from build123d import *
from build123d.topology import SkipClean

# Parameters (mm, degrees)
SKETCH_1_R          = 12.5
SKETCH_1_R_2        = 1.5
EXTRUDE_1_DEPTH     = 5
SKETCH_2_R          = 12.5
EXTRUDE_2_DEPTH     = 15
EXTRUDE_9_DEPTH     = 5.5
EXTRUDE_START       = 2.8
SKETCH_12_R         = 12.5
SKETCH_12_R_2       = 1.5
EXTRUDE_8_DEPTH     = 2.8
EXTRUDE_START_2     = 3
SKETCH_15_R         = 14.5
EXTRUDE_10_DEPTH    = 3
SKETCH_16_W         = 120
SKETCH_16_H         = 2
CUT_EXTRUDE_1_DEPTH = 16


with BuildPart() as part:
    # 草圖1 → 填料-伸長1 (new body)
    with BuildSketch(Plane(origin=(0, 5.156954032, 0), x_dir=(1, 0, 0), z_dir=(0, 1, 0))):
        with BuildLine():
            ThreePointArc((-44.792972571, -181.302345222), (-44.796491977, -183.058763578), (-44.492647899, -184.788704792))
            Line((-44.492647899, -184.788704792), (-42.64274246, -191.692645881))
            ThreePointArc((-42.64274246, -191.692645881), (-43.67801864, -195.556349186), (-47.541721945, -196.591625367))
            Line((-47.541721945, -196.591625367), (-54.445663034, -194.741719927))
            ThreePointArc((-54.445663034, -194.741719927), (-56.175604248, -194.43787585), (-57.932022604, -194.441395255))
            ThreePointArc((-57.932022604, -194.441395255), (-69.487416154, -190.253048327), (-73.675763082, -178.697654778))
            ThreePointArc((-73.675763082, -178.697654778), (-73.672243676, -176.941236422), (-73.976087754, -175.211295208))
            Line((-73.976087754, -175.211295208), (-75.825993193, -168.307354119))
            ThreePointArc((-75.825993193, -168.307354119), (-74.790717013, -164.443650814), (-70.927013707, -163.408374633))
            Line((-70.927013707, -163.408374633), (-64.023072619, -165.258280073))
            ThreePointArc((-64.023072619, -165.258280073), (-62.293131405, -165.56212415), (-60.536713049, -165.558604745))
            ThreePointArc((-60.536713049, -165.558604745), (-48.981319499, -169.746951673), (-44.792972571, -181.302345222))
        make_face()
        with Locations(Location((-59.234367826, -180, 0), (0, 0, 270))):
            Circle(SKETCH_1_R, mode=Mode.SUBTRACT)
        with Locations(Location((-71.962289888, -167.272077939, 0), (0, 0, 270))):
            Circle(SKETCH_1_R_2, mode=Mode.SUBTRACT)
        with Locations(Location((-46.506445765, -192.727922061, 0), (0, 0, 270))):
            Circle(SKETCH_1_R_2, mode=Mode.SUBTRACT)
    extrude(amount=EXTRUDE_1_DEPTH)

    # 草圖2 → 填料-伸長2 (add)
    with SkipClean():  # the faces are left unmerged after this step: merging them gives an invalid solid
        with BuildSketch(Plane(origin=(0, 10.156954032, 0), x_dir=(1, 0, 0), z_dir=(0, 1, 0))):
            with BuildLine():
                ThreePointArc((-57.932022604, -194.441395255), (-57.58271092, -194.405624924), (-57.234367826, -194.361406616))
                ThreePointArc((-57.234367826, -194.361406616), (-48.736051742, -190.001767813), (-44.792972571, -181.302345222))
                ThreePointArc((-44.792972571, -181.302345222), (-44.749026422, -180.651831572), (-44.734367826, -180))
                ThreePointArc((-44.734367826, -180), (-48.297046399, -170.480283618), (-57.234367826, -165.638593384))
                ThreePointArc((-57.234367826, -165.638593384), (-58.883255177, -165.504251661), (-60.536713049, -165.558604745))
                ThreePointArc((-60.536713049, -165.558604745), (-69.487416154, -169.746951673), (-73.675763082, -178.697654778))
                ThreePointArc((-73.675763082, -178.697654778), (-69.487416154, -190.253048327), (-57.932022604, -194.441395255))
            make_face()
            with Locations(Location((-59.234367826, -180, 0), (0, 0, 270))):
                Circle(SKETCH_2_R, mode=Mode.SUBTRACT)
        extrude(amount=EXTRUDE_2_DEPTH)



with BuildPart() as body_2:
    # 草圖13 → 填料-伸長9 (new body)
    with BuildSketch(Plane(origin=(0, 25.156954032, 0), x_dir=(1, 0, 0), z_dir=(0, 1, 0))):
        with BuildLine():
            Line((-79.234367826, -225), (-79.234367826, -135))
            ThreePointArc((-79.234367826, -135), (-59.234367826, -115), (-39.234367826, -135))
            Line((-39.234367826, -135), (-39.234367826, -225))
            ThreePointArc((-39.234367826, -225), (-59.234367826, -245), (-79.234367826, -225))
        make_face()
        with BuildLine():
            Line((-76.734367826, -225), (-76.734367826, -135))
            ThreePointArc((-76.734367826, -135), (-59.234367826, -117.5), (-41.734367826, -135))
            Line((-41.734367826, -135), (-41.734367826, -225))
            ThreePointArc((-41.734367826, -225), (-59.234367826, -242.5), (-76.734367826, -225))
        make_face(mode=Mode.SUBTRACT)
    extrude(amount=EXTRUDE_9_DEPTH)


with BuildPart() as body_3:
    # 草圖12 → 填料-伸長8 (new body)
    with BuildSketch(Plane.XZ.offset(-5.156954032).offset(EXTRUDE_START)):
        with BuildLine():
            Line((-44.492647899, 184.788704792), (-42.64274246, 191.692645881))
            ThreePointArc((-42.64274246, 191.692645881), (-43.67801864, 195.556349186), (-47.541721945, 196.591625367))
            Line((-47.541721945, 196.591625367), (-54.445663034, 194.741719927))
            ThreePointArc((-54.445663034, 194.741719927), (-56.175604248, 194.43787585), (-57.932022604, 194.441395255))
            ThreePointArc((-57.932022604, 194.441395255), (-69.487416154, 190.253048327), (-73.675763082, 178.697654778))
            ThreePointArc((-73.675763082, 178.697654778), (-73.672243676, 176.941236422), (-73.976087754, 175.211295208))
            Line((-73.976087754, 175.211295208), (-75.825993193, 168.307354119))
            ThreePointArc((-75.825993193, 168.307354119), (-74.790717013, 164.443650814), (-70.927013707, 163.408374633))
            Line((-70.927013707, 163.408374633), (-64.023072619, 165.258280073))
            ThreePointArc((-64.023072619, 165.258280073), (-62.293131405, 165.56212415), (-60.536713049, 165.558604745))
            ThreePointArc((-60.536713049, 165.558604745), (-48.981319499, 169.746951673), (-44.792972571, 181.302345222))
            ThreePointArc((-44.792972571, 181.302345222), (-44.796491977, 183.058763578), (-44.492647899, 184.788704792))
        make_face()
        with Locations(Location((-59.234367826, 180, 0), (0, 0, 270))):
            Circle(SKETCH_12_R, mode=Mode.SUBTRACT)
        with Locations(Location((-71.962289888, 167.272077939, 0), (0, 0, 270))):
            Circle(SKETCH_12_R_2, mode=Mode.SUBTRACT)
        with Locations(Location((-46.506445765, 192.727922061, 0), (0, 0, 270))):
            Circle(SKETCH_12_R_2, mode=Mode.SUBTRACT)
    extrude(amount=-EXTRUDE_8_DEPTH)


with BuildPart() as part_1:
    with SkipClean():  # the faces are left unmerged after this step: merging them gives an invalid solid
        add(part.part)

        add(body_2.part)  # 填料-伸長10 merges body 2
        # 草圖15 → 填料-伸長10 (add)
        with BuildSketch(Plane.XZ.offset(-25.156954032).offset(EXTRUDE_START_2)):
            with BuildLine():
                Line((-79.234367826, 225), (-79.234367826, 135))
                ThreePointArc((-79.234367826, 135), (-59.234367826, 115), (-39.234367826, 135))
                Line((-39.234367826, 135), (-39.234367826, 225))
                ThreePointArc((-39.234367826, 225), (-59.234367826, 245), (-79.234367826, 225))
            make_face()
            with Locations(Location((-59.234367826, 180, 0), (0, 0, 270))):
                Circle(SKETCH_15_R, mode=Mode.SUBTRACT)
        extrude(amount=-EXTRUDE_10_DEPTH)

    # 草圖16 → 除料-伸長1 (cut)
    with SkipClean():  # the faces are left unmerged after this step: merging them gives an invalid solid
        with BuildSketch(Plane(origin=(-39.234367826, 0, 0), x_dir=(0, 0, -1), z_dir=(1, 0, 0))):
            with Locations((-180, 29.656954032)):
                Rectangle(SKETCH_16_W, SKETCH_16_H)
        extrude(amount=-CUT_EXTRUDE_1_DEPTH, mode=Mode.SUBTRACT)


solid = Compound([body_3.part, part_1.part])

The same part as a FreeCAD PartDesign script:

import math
import FreeCAD as App
import Part
import Sketcher
Q = App.Units.Quantity


def add_polygon(sketch, points):
    """Adds a closed chain of lines whose ends are joined by coincident constraints."""
    first, n = sketch.GeometryCount, len(points)
    for a, b in zip(points, points[1:] + points[:1]):
        sketch.addGeometry(Part.LineSegment(App.Vector(*a, 0), App.Vector(*b, 0)), False)
    for i in range(n):
        sketch.addConstraint(Sketcher.Constraint("Coincident", first + i, 2, first + (i + 1) % n, 1))

doc = App.newDocument("Part")
body = doc.addObject("PartDesign::Body", "Body")

sketch1 = body.newObject("Sketcher::SketchObject", "Sketch")
sketch1.AttachmentSupport = (doc.getObject("XZ_Plane"), [""])
sketch1.MapMode = "FlatFace"
sketch1.AttachmentOffset = App.Placement(App.Vector(0, 0, -5.156954), App.Rotation())
sketch1.addGeometry(Part.ArcOfCircle(Part.Circle(App.Vector(-34.8, 182.2, 0), App.Vector(0, 0, 1), 10), math.radians(165), math.radians(185)), False)
sketch1.addGeometry(Part.ArcOfCircle(Part.Circle(App.Vector(-59.2, 180, 0), App.Vector(0, 0, 1), 14.5), math.radians(-95), math.radians(5)), False)
sketch1.addGeometry(Part.ArcOfCircle(Part.Circle(App.Vector(-61.4, 155.6, 0), App.Vector(0, 0, 1), 10), math.radians(85), math.radians(105)), False)
sketch1.addGeometry(Part.LineSegment(App.Vector(-64, 165.3, 0), App.Vector(-70.9, 163.4, 0)), False)
sketch1.addGeometry(Part.ArcOfCircle(Part.Circle(App.Vector(-72, 167.3, 0), App.Vector(0, 0, 1), 4), math.radians(165), math.radians(285)), False)
sketch1.addGeometry(Part.LineSegment(App.Vector(-75.8, 168.3, 0), App.Vector(-74, 175.2, 0)), False)
sketch1.addGeometry(Part.ArcOfCircle(Part.Circle(App.Vector(-83.6, 177.8, 0), App.Vector(0, 0, 1), 10), math.radians(-15), math.radians(5)), False)
sketch1.addGeometry(Part.ArcOfCircle(Part.Circle(App.Vector(-59.2, 180, 0), App.Vector(0, 0, 1), 14.5), math.radians(85), math.radians(185)), False)
sketch1.addGeometry(Part.ArcOfCircle(Part.Circle(App.Vector(-57, 204.4, 0), App.Vector(0, 0, 1), 10), math.radians(-95), math.radians(-75)), False)
sketch1.addGeometry(Part.LineSegment(App.Vector(-54.4, 194.7, 0), App.Vector(-47.5, 196.6, 0)), False)
sketch1.addGeometry(Part.ArcOfCircle(Part.Circle(App.Vector(-46.5, 192.7, 0), App.Vector(0, 0, 1), 4), math.radians(-15), math.radians(105)), False)
sketch1.addGeometry(Part.LineSegment(App.Vector(-42.6, 191.7, 0), App.Vector(-44.5, 184.8, 0)), False)
sketch1.addGeometry(Part.Circle(App.Vector(-46.5, 192.7, 0), App.Vector(0, 0, 1), 1.5), False)
sketch1.addGeometry(Part.Circle(App.Vector(-59.2, 180, 0), App.Vector(0, 0, 1), 12.5), False)
sketch1.addGeometry(Part.Circle(App.Vector(-72, 167.3, 0), App.Vector(0, 0, 1), 1.5), False)
sketch1.addConstraint(Sketcher.Constraint("Tangent", 0, 2, 1, 2))
sketch1.addConstraint(Sketcher.Constraint("Tangent", 1, 1, 2, 1))
sketch1.addConstraint(Sketcher.Constraint("Tangent", 2, 2, 3, 1))
sketch1.addConstraint(Sketcher.Constraint("Tangent", 3, 2, 4, 2))
sketch1.addConstraint(Sketcher.Constraint("Tangent", 4, 1, 5, 1))
sketch1.addConstraint(Sketcher.Constraint("Tangent", 5, 2, 6, 1))
sketch1.addConstraint(Sketcher.Constraint("Tangent", 6, 2, 7, 2))
sketch1.addConstraint(Sketcher.Constraint("Tangent", 7, 1, 8, 1))
sketch1.addConstraint(Sketcher.Constraint("Tangent", 8, 2, 9, 1))
sketch1.addConstraint(Sketcher.Constraint("Tangent", 9, 2, 10, 2))
sketch1.addConstraint(Sketcher.Constraint("Tangent", 10, 1, 11, 1))
sketch1.addConstraint(Sketcher.Constraint("Tangent", 11, 2, 0, 1))
sketch1.addConstraint(Sketcher.Constraint("Coincident", 7, 3, 1, 3))
sketch1.addConstraint(Sketcher.Constraint("Coincident", 12, 3, 10, 3))
sketch1.addConstraint(Sketcher.Constraint("Coincident", 13, 3, 1, 3))
sketch1.addConstraint(Sketcher.Constraint("Coincident", 14, 3, 4, 3))
sketch1.addConstraint(Sketcher.Constraint("Equal", 0, 2))
sketch1.addConstraint(Sketcher.Constraint("Equal", 2, 6))
sketch1.addConstraint(Sketcher.Constraint("Equal", 1, 7))
sketch1.addConstraint(Sketcher.Constraint("Equal", 6, 8))
sketch1.addConstraint(Sketcher.Constraint("Equal", 4, 10))
sketch1.addConstraint(Sketcher.Constraint("Equal", 12, 14))
sketch1.addConstraint(Sketcher.Constraint("Parallel", 3, 9))
sketch1.addConstraint(Sketcher.Constraint("Parallel", 5, 11))
sketch1.addConstraint(Sketcher.Constraint("Equal", 3, 5))
sketch1.addConstraint(Sketcher.Constraint("Equal", 5, 9))
sketch1.addConstraint(Sketcher.Constraint("Equal", 9, 11))
sketch1.addConstraint(Sketcher.Constraint("Diameter", 12, 3.0))
sketch1.addConstraint(Sketcher.Constraint("Diameter", 13, 25.0))
sketch1.addConstraint(Sketcher.Constraint("Radius", 0, 10.0))
sketch1.addConstraint(Sketcher.Constraint("Radius", 4, 4.0))
sketch1.addConstraint(Sketcher.Constraint("Radius", 1, 14.5))
sketch1.addConstraint(Sketcher.Constraint("Angle", 3, Q("-165 deg")))
sketch1.addConstraint(Sketcher.Constraint("Angle", 5, Q("75 deg")))
sketch1.addConstraint(Sketcher.Constraint("DistanceY", -1, 1, 1, 3, 180.0))
sketch1.addConstraint(Sketcher.Constraint("DistanceX", 4, 3, 0, 3, 37.1289))
sketch1.addConstraint(Sketcher.Constraint("DistanceX", 0, 3, -1, 1, 34.83339))
pad1 = body.newObject("PartDesign::Pad", "Pad")
pad1.Profile = sketch1
pad1.Length = 5
pad1.Reversed = True

sketch2 = body.newObject("Sketcher::SketchObject", "Sketch001")
sketch2.AttachmentSupport = (doc.getObject("XZ_Plane"), [""])
sketch2.MapMode = "FlatFace"
sketch2.AttachmentOffset = App.Placement(App.Vector(0, 0, -10.156954), App.Rotation())
sketch2.addGeometry(Part.ArcOfCircle(Part.Circle(App.Vector(-59.2, 180, 0), App.Vector(0, 0, 1), 14.5), math.radians(82.07), math.radians(84.85)), False)
sketch2.addGeometry(Part.ArcOfCircle(Part.Circle(App.Vector(-59.2, 180, 0), App.Vector(0, 0, 1), 14.5), math.radians(5), math.radians(82)), False)
sketch2.addGeometry(Part.ArcOfCircle(Part.Circle(App.Vector(-59.2, 180, 0), App.Vector(0, 0, 1), 14.5), math.radians(0), math.radians(5.15)), False)
sketch2.addGeometry(Part.ArcOfCircle(Part.Circle(App.Vector(-59.2, 180, 0), App.Vector(0, 0, 1), 14.5), math.radians(-82), math.radians(0)), False)
sketch2.addGeometry(Part.ArcOfCircle(Part.Circle(App.Vector(-59.2, 180, 0), App.Vector(0, 0, 1), 14.5), math.radians(-95.15), math.radians(-82.07)), False)
sketch2.addGeometry(Part.ArcOfCircle(Part.Circle(App.Vector(-59.2, 180, 0), App.Vector(0, 0, 1), 14.5), math.radians(-175), math.radians(-95)), False)
sketch2.addGeometry(Part.ArcOfCircle(Part.Circle(App.Vector(-59.2, 180, 0), App.Vector(0, 0, 1), 14.5), math.radians(85), math.radians(185)), False)
sketch2.addGeometry(Part.Circle(App.Vector(-59.2, 180, 0), App.Vector(0, 0, 1), 12.5), False)
sketch2.addConstraint(Sketcher.Constraint("Tangent", 0, 1, 1, 2))
sketch2.addConstraint(Sketcher.Constraint("Tangent", 1, 1, 2, 2))
sketch2.addConstraint(Sketcher.Constraint("Tangent", 2, 1, 3, 2))
sketch2.addConstraint(Sketcher.Constraint("Tangent", 3, 1, 4, 2))
sketch2.addConstraint(Sketcher.Constraint("Tangent", 4, 1, 5, 2))
sketch2.addConstraint(Sketcher.Constraint("Tangent", 5, 1, 6, 2))
sketch2.addConstraint(Sketcher.Constraint("Tangent", 6, 1, 0, 2))
sketch2.addConstraint(Sketcher.Constraint("Coincident", 2, 3, 0, 3))
sketch2.addConstraint(Sketcher.Constraint("Coincident", 4, 3, 0, 3))
sketch2.addConstraint(Sketcher.Constraint("Coincident", 7, 3, 0, 3))
sketch2.addConstraint(Sketcher.Constraint("Horizontal", 7, 3, 2, 1))
sketch2.addConstraint(Sketcher.Constraint("Vertical", 0, 1, 3, 1))
sketch2.addConstraint(Sketcher.Constraint("Diameter", 7, 25.0))
sketch2.addConstraint(Sketcher.Constraint("Radius", 0, 14.5))
sketch2.addConstraint(Sketcher.Constraint("DistanceY", -1, 1, 0, 3, 180.0))
sketch2.addConstraint(Sketcher.Constraint("DistanceX", 3, 3, 0, 1, 2.0))
sketch2.addConstraint(Sketcher.Constraint("DistanceX", 2, 3, -1, 1, 59.234368))
sketch2.addConstraint(Sketcher.Constraint("DistanceY", 4, 1, 3, 1, 0.079989))
sketch2.addConstraint(Sketcher.Constraint("DistanceY", 0, 1, 6, 1, 0.079989))
sketch2.addConstraint(Sketcher.Constraint("DistanceX", 1, 1, -1, 1, 44.792973))
sketch2.addConstraint(Sketcher.Constraint("DistanceX", 5, 1, -1, 1, 73.675763))
pad2 = body.newObject("PartDesign::Pad", "Pad001")
pad2.Profile = sketch2
pad2.Length = 15
pad2.Reversed = True
body2 = doc.addObject("PartDesign::Body", "Body001")

sketch3 = body2.newObject("Sketcher::SketchObject", "Sketch002")
sketch3.AttachmentSupport = (doc.getObject("XZ_Plane001"), [""])
sketch3.MapMode = "FlatFace"
sketch3.AttachmentOffset = App.Placement(App.Vector(0, 0, -25.156954), App.Rotation())
sketch3.addGeometry(Part.LineSegment(App.Vector(-79, 135, 0), App.Vector(-79, 225, 0)), False)
sketch3.addGeometry(Part.ArcOfCircle(Part.Circle(App.Vector(-59, 225, 0), App.Vector(0, 0, 1), 20), math.radians(0), math.radians(180)), False)
sketch3.addGeometry(Part.LineSegment(App.Vector(-39, 225, 0), App.Vector(-39, 135, 0)), False)
sketch3.addGeometry(Part.ArcOfCircle(Part.Circle(App.Vector(-59, 135, 0), App.Vector(0, 0, 1), 20), math.radians(180), math.radians(360)), False)
sketch3.addGeometry(Part.LineSegment(App.Vector(-77, 225, 0), App.Vector(-77, 135, 0)), False)
sketch3.addGeometry(Part.ArcOfCircle(Part.Circle(App.Vector(-59, 135, 0), App.Vector(0, 0, 1), 18), math.radians(180), math.radians(360)), False)
sketch3.addGeometry(Part.LineSegment(App.Vector(-42, 135, 0), App.Vector(-42, 225, 0)), False)
sketch3.addGeometry(Part.ArcOfCircle(Part.Circle(App.Vector(-59, 225, 0), App.Vector(0, 0, 1), 18), math.radians(0), math.radians(180)), False)
sketch3.addConstraint(Sketcher.Constraint("Tangent", 0, 2, 1, 2))
sketch3.addConstraint(Sketcher.Constraint("Tangent", 1, 1, 2, 1))
sketch3.addConstraint(Sketcher.Constraint("Tangent", 2, 2, 3, 2))
sketch3.addConstraint(Sketcher.Constraint("Tangent", 3, 1, 0, 1))
sketch3.addConstraint(Sketcher.Constraint("Tangent", 4, 2, 5, 1))
sketch3.addConstraint(Sketcher.Constraint("Tangent", 5, 2, 6, 1))
sketch3.addConstraint(Sketcher.Constraint("Tangent", 6, 2, 7, 1))
sketch3.addConstraint(Sketcher.Constraint("Tangent", 7, 2, 4, 1))
sketch3.addConstraint(Sketcher.Constraint("Vertical", 0))
sketch3.addConstraint(Sketcher.Constraint("Vertical", 2))
sketch3.addConstraint(Sketcher.Constraint("Vertical", 4))
sketch3.addConstraint(Sketcher.Constraint("Vertical", 6))
sketch3.addConstraint(Sketcher.Constraint("Coincident", 5, 3, 3, 3))
sketch3.addConstraint(Sketcher.Constraint("Horizontal", 7, 3, 0, 2))
sketch3.addConstraint(Sketcher.Constraint("Radius", 1, 20.0))
sketch3.addConstraint(Sketcher.Constraint("Radius", 5, 17.5))
sketch3.addConstraint(Sketcher.Constraint("DistanceY", 0, 1, 0, 2, 90.0))
sketch3.addConstraint(Sketcher.Constraint("DistanceY", -1, 1, 1, 3, 225.0))
sketch3.addConstraint(Sketcher.Constraint("DistanceX", 1, 3, -1, 1, 59.234368))
pad3 = body2.newObject("PartDesign::Pad", "Pad002")
pad3.Profile = sketch3
pad3.Length = 5.5
pad3.Reversed = True
body3 = doc.addObject("PartDesign::Body", "Body002")

sketch4 = body3.newObject("Sketcher::SketchObject", "Sketch003")
sketch4.AttachmentSupport = (doc.getObject("XZ_Plane002"), [""])
sketch4.MapMode = "FlatFace"
sketch4.AttachmentOffset = App.Placement(App.Vector(0, 0, -2.356954), App.Rotation())
sketch4.addGeometry(Part.LineSegment(App.Vector(-44.5, 184.8, 0), App.Vector(-42.6, 191.7, 0)), False)
sketch4.addGeometry(Part.ArcOfCircle(Part.Circle(App.Vector(-46.5, 192.7, 0), App.Vector(0, 0, 1), 4), math.radians(-15), math.radians(105)), False)
sketch4.addGeometry(Part.LineSegment(App.Vector(-47.5, 196.6, 0), App.Vector(-54.4, 194.7, 0)), False)
sketch4.addGeometry(Part.ArcOfCircle(Part.Circle(App.Vector(-57, 204.4, 0), App.Vector(0, 0, 1), 10), math.radians(-95), math.radians(-75)), False)
sketch4.addGeometry(Part.ArcOfCircle(Part.Circle(App.Vector(-59.2, 180, 0), App.Vector(0, 0, 1), 14.5), math.radians(85), math.radians(185)), False)
sketch4.addGeometry(Part.ArcOfCircle(Part.Circle(App.Vector(-83.6, 177.8, 0), App.Vector(0, 0, 1), 10), math.radians(-15), math.radians(5)), False)
sketch4.addGeometry(Part.LineSegment(App.Vector(-74, 175.2, 0), App.Vector(-75.8, 168.3, 0)), False)
sketch4.addGeometry(Part.ArcOfCircle(Part.Circle(App.Vector(-72, 167.3, 0), App.Vector(0, 0, 1), 4), math.radians(165), math.radians(285)), False)
sketch4.addGeometry(Part.LineSegment(App.Vector(-70.9, 163.4, 0), App.Vector(-64, 165.3, 0)), False)
sketch4.addGeometry(Part.ArcOfCircle(Part.Circle(App.Vector(-61.4, 155.6, 0), App.Vector(0, 0, 1), 10), math.radians(85), math.radians(105)), False)
sketch4.addGeometry(Part.ArcOfCircle(Part.Circle(App.Vector(-59.2, 180, 0), App.Vector(0, 0, 1), 14.5), math.radians(-95), math.radians(5)), False)
sketch4.addGeometry(Part.ArcOfCircle(Part.Circle(App.Vector(-34.8, 182.2, 0), App.Vector(0, 0, 1), 10), math.radians(165), math.radians(185)), False)
sketch4.addGeometry(Part.Circle(App.Vector(-72, 167.3, 0), App.Vector(0, 0, 1), 1.5), False)
sketch4.addGeometry(Part.Circle(App.Vector(-59.2, 180, 0), App.Vector(0, 0, 1), 12.5), False)
sketch4.addGeometry(Part.Circle(App.Vector(-46.5, 192.7, 0), App.Vector(0, 0, 1), 1.5), False)
sketch4.addConstraint(Sketcher.Constraint("Tangent", 0, 2, 1, 1))
sketch4.addConstraint(Sketcher.Constraint("Tangent", 1, 2, 2, 1))
sketch4.addConstraint(Sketcher.Constraint("Tangent", 2, 2, 3, 2))
sketch4.addConstraint(Sketcher.Constraint("Tangent", 3, 1, 4, 1))
sketch4.addConstraint(Sketcher.Constraint("Tangent", 4, 2, 5, 2))
sketch4.addConstraint(Sketcher.Constraint("Tangent", 5, 1, 6, 1))
sketch4.addConstraint(Sketcher.Constraint("Tangent", 6, 2, 7, 1))
sketch4.addConstraint(Sketcher.Constraint("Tangent", 7, 2, 8, 1))
sketch4.addConstraint(Sketcher.Constraint("Tangent", 8, 2, 9, 2))
sketch4.addConstraint(Sketcher.Constraint("Tangent", 9, 1, 10, 1))
sketch4.addConstraint(Sketcher.Constraint("Tangent", 10, 2, 11, 2))
sketch4.addConstraint(Sketcher.Constraint("Tangent", 11, 1, 0, 1))
sketch4.addConstraint(Sketcher.Constraint("Coincident", 10, 3, 4, 3))
sketch4.addConstraint(Sketcher.Constraint("Coincident", 12, 3, 7, 3))
sketch4.addConstraint(Sketcher.Constraint("Coincident", 13, 3, 4, 3))
sketch4.addConstraint(Sketcher.Constraint("Coincident", 14, 3, 1, 3))
sketch4.addConstraint(Sketcher.Constraint("Equal", 3, 5))
sketch4.addConstraint(Sketcher.Constraint("Equal", 1, 7))
sketch4.addConstraint(Sketcher.Constraint("Equal", 5, 9))
sketch4.addConstraint(Sketcher.Constraint("Equal", 4, 10))
sketch4.addConstraint(Sketcher.Constraint("Equal", 9, 11))
sketch4.addConstraint(Sketcher.Constraint("Equal", 12, 14))
sketch4.addConstraint(Sketcher.Constraint("Parallel", 0, 6))
sketch4.addConstraint(Sketcher.Constraint("Parallel", 2, 8))
sketch4.addConstraint(Sketcher.Constraint("Equal", 0, 2))
sketch4.addConstraint(Sketcher.Constraint("Equal", 2, 6))
sketch4.addConstraint(Sketcher.Constraint("Equal", 6, 8))
sketch4.addConstraint(Sketcher.Constraint("Diameter", 12, 3.0))
sketch4.addConstraint(Sketcher.Constraint("Diameter", 13, 25.0))
sketch4.addConstraint(Sketcher.Constraint("Radius", 1, 4.0))
sketch4.addConstraint(Sketcher.Constraint("Radius", 3, 10.0))
sketch4.addConstraint(Sketcher.Constraint("Radius", 4, 14.5))
sketch4.addConstraint(Sketcher.Constraint("Angle", 0, Q("75 deg")))
sketch4.addConstraint(Sketcher.Constraint("Angle", 2, Q("-165 deg")))
sketch4.addConstraint(Sketcher.Constraint("DistanceY", -1, 1, 4, 3, 180.0))
sketch4.addConstraint(Sketcher.Constraint("DistanceX", 5, 3, 1, 3, 37.1289))
sketch4.addConstraint(Sketcher.Constraint("DistanceX", 7, 3, -1, 1, 71.96229))
pad4 = body3.newObject("PartDesign::Pad", "Pad003")
pad4.Profile = sketch4
pad4.Length = 2.8
pad4.Reversed = True
body.AllowCompound = True
doc.recompute()

boolean = body.newObject("PartDesign::Boolean", "Boolean")
boolean.Type = "Fuse"
boolean.addObjects([body2])

sketch5 = body.newObject("Sketcher::SketchObject", "Sketch004")
sketch5.AttachmentSupport = (doc.getObject("XZ_Plane"), [""])
sketch5.MapMode = "FlatFace"
sketch5.AttachmentOffset = App.Placement(App.Vector(0, 0, -22.156954), App.Rotation())
sketch5.addGeometry(Part.LineSegment(App.Vector(-79, 225, 0), App.Vector(-79, 135, 0)), False)
sketch5.addGeometry(Part.ArcOfCircle(Part.Circle(App.Vector(-59, 135, 0), App.Vector(0, 0, 1), 20), math.radians(180), math.radians(360)), False)
sketch5.addGeometry(Part.LineSegment(App.Vector(-39, 135, 0), App.Vector(-39, 225, 0)), False)
sketch5.addGeometry(Part.ArcOfCircle(Part.Circle(App.Vector(-59, 225, 0), App.Vector(0, 0, 1), 20), math.radians(0), math.radians(180)), False)
sketch5.addGeometry(Part.Circle(App.Vector(-59, 180, 0), App.Vector(0, 0, 1), 14), False)
sketch5.addConstraint(Sketcher.Constraint("Tangent", 0, 2, 1, 1))
sketch5.addConstraint(Sketcher.Constraint("Tangent", 1, 2, 2, 1))
sketch5.addConstraint(Sketcher.Constraint("Tangent", 2, 2, 3, 1))
sketch5.addConstraint(Sketcher.Constraint("Tangent", 3, 2, 0, 1))
sketch5.addConstraint(Sketcher.Constraint("Vertical", 0))
sketch5.addConstraint(Sketcher.Constraint("Vertical", 2))
sketch5.addConstraint(Sketcher.Constraint("Vertical", 3, 3, 4, 3))
sketch5.addConstraint(Sketcher.Constraint("Diameter", 4, 29.0))
sketch5.addConstraint(Sketcher.Constraint("Radius", 1, 20.0))
sketch5.addConstraint(Sketcher.Constraint("DistanceY", 0, 2, 0, 1, 90.0))
sketch5.addConstraint(Sketcher.Constraint("DistanceY", -1, 1, 1, 3, 135.0))
sketch5.addConstraint(Sketcher.Constraint("DistanceY", -1, 1, 4, 3, 180.0))
sketch5.addConstraint(Sketcher.Constraint("DistanceX", 1, 3, -1, 1, 59.234368))
pad5 = body.newObject("PartDesign::Pad", "Pad004")
pad5.Profile = sketch5
pad5.Length = 3
pad5.Reversed = True

sketch6 = body.newObject("Sketcher::SketchObject", "Sketch005")
sketch6.AttachmentSupport = (doc.getObject("YZ_Plane"), [""])
sketch6.MapMode = "FlatFace"
sketch6.AttachmentOffset = App.Placement(App.Vector(0, 0, -39.234368), App.Rotation())
add_polygon(sketch6, [(30.7, 240), (28.7, 240), (28.7, 120), (30.7, 120)])
sketch6.addConstraint(Sketcher.Constraint("Horizontal", 0))
sketch6.addConstraint(Sketcher.Constraint("Vertical", 1))
sketch6.addConstraint(Sketcher.Constraint("Horizontal", 2))
sketch6.addConstraint(Sketcher.Constraint("Vertical", 3))
sketch6.addConstraint(Sketcher.Constraint("DistanceX", 0, 2, 0, 1, 2.0))
sketch6.addConstraint(Sketcher.Constraint("DistanceY", 1, 2, 1, 1, 120.0))
sketch6.addConstraint(Sketcher.Constraint("DistanceY", -1, 1, 0, 2, 240.0))
sketch6.addConstraint(Sketcher.Constraint("DistanceX", -1, 1, 0, 2, 28.656954))
pocket1 = body.newObject("PartDesign::Pocket", "Pocket")
pocket1.Profile = sketch6
pocket1.Length = 16

doc.recompute()
